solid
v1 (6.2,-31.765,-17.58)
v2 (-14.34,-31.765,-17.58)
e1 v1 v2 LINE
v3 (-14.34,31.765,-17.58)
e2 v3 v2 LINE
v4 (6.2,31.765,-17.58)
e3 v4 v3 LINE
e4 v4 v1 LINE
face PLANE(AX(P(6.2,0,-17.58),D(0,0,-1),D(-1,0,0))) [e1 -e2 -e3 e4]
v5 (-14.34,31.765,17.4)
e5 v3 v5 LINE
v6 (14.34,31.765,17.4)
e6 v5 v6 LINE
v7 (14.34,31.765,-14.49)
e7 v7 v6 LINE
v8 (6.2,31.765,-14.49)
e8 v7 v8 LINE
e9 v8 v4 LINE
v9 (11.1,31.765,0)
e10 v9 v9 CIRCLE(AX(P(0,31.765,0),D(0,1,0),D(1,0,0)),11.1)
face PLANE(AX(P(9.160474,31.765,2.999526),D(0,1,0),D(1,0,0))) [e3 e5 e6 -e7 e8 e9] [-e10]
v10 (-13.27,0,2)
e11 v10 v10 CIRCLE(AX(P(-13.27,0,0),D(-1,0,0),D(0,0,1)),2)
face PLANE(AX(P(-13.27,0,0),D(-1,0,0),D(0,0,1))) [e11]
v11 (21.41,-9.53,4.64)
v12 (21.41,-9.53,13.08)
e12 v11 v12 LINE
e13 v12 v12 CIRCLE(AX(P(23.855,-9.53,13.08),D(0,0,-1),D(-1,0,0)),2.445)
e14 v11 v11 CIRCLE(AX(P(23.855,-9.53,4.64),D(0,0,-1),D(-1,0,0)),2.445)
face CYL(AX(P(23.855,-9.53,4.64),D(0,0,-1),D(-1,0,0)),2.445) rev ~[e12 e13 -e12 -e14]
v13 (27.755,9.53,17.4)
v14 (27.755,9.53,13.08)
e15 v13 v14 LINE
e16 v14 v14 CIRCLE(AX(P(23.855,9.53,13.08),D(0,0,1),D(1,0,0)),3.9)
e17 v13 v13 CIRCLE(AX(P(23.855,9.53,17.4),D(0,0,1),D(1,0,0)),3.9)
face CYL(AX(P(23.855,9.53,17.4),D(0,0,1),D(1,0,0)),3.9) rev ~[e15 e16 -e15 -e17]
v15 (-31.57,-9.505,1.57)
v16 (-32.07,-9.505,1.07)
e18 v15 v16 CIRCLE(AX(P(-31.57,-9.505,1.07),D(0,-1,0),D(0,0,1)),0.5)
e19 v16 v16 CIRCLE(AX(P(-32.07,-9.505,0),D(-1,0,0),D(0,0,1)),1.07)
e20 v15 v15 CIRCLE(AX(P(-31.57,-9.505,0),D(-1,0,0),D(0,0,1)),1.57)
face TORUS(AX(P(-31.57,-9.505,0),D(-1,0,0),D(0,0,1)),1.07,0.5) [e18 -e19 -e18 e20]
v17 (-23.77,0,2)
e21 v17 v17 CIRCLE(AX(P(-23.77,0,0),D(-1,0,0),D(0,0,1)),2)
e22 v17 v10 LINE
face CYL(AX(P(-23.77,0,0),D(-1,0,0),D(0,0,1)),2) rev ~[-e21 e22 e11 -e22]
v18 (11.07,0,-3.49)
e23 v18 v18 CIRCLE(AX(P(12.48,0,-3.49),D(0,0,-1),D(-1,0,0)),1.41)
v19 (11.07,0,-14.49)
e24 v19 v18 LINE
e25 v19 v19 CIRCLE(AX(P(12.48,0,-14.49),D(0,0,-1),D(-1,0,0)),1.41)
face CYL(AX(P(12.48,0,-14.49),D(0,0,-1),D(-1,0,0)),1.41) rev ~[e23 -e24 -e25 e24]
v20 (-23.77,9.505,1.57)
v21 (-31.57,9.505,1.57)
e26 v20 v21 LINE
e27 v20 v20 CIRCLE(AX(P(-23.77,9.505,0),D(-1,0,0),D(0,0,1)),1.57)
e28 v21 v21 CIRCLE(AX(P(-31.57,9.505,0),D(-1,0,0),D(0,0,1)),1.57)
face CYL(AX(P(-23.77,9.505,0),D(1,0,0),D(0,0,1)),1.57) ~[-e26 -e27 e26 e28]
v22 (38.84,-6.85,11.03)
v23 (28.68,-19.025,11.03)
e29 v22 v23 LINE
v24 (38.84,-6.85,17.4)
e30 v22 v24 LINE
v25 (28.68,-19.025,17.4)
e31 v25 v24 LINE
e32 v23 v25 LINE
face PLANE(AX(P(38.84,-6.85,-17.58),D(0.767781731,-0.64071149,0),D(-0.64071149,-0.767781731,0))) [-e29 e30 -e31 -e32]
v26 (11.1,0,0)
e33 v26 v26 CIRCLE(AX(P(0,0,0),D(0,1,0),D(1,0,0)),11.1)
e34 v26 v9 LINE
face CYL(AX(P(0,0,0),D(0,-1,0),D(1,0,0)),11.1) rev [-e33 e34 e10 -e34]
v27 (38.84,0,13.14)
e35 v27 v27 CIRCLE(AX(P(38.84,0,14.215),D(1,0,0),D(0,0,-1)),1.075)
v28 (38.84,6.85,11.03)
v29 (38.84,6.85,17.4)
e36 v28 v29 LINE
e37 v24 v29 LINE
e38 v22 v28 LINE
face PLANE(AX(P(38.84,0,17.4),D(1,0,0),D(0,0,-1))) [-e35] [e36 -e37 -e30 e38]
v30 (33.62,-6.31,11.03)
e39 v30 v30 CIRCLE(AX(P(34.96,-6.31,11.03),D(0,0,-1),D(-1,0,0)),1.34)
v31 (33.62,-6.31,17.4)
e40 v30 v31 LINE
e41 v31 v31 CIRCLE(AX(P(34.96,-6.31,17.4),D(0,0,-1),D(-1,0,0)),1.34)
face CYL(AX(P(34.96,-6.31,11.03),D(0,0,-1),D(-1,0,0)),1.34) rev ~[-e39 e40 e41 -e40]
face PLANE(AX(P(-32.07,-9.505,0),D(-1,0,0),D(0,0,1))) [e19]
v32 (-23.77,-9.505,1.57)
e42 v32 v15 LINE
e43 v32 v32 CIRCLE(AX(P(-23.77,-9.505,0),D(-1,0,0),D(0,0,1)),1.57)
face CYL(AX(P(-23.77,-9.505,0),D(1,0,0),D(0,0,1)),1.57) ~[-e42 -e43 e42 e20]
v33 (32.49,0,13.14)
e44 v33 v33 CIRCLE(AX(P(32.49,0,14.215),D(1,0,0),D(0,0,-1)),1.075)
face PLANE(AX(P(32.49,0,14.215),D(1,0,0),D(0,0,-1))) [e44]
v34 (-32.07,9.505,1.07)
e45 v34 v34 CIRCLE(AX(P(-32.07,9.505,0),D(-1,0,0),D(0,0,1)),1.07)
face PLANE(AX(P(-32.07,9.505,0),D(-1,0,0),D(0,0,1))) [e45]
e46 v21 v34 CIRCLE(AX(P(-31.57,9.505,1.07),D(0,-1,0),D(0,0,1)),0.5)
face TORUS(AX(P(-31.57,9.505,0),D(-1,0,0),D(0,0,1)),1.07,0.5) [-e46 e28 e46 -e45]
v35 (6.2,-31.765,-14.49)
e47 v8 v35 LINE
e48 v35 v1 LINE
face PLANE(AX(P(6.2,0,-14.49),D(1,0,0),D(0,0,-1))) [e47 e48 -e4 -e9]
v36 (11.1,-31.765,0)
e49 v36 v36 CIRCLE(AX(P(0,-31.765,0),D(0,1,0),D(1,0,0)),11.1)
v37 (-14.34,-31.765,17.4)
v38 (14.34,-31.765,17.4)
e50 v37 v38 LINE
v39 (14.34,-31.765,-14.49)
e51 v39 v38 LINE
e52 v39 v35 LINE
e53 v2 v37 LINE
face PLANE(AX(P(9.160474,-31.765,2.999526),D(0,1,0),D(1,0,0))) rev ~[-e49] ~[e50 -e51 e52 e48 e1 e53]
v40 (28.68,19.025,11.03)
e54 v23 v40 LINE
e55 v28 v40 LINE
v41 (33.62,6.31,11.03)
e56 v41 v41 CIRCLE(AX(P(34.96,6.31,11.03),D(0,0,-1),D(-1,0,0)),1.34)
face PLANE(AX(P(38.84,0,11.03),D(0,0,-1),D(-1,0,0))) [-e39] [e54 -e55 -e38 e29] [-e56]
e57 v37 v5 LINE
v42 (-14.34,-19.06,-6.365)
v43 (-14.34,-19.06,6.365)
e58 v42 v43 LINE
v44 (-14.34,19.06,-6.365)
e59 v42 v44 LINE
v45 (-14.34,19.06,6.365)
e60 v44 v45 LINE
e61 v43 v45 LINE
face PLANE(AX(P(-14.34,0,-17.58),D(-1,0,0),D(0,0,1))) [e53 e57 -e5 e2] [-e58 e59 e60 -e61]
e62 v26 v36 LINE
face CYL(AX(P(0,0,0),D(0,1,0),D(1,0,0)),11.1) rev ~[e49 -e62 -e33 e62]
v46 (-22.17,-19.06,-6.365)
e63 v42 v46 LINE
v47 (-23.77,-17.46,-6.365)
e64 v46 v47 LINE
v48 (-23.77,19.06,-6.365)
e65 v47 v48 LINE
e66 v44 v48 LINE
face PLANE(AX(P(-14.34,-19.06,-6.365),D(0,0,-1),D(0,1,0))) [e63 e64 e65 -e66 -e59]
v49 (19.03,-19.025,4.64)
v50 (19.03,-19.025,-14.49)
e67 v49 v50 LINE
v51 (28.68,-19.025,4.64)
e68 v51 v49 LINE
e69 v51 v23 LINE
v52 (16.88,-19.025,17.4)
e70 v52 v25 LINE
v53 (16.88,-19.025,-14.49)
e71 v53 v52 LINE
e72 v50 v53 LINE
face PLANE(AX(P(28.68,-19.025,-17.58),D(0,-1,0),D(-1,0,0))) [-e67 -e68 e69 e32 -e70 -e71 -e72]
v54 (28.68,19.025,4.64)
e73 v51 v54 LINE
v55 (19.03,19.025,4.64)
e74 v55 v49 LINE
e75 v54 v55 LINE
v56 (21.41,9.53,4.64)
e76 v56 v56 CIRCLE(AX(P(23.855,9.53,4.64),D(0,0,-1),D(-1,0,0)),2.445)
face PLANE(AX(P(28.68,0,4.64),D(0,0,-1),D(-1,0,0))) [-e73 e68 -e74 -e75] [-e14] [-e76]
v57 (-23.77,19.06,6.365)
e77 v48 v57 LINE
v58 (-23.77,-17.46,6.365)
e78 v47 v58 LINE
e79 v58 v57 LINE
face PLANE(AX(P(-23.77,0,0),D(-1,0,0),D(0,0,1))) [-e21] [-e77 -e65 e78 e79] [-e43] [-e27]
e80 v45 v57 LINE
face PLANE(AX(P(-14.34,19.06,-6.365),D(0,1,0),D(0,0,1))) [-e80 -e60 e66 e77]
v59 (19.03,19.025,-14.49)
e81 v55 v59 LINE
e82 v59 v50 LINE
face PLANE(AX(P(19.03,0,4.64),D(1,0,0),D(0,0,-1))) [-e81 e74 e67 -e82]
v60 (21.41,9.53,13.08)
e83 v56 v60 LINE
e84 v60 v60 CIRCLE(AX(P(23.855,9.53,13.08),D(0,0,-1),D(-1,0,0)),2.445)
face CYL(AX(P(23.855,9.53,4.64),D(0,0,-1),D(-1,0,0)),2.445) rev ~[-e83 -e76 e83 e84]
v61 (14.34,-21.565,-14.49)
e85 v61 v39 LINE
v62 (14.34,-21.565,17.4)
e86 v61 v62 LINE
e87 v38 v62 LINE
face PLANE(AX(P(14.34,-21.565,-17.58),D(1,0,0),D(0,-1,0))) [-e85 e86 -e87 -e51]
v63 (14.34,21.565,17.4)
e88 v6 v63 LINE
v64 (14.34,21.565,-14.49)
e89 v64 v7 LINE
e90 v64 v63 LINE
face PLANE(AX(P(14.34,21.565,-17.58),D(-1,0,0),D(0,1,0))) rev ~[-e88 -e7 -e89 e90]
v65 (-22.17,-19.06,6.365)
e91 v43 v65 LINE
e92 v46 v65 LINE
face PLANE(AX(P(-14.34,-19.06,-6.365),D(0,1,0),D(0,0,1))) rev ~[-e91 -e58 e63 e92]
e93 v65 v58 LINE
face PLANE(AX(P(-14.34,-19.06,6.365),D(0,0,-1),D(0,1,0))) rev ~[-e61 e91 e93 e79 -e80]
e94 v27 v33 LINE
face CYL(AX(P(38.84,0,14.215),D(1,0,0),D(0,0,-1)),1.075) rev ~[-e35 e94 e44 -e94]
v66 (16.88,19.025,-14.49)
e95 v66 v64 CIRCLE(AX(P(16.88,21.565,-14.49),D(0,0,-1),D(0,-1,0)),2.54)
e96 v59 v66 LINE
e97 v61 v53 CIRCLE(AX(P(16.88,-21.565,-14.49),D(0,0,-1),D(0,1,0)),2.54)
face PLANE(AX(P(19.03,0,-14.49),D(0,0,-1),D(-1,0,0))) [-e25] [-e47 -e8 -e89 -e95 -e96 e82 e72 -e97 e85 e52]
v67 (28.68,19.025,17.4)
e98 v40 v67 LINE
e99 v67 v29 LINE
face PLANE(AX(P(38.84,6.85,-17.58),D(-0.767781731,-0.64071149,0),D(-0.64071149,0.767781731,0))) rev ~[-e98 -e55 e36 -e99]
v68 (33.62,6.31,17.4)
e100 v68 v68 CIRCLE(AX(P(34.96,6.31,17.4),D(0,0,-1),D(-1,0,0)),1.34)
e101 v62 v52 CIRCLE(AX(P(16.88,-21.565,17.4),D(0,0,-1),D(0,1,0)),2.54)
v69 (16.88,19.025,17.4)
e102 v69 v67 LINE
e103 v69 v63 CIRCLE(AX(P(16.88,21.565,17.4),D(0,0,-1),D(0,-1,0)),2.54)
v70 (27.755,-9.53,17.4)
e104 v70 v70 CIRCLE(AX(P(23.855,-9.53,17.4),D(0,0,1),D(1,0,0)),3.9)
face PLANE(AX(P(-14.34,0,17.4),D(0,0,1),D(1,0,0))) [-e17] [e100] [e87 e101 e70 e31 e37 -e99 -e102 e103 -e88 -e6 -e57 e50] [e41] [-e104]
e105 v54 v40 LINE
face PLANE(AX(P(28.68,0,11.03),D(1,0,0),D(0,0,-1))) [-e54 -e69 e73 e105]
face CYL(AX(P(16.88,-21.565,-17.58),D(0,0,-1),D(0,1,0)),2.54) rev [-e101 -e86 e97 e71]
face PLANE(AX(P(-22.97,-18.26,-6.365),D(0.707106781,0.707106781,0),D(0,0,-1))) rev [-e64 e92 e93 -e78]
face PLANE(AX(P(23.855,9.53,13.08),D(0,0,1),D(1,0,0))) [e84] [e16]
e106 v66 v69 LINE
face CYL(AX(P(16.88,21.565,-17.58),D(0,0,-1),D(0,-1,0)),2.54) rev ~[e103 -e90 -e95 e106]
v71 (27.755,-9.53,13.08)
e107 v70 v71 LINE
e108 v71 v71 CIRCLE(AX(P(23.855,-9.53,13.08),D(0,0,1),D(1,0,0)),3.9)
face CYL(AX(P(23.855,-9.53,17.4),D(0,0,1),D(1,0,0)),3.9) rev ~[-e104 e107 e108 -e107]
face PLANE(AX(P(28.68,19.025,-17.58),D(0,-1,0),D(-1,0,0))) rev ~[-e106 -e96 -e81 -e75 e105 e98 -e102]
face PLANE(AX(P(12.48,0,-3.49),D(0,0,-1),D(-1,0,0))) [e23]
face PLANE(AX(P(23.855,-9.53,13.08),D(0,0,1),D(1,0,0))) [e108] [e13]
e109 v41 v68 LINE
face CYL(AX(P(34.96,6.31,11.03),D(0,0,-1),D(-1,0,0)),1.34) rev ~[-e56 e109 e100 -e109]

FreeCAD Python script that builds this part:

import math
import FreeCAD as App
import Part
import Sketcher

V = App.Vector
Q = App.Units.Quantity


def edges_at(feature, points):
    """Names of the edges that pass closest to the given points."""
    edges = feature.Shape.Edges
    near = lambda p: min(range(len(edges)), key=lambda i: edges[i].distToShape(Part.Vertex(*p))[0])
    return sorted({f"Edge{near(p) + 1}" for p in points})


def add_polygon(sketch, points):
    """Adds a closed chain of lines whose ends are joined by coincident constraints."""
    first, n = sketch.GeometryCount, len(points)
    for a, b in zip(points, points[1:] + points[:1]):
        sketch.addGeometry(Part.LineSegment(App.Vector(*a, 0), App.Vector(*b, 0)), False)
    for i in range(n):
        sketch.addConstraint(Sketcher.Constraint("Coincident", first + i, 2, first + (i + 1) % n, 1))

doc = App.newDocument("Part")
body = doc.addObject("PartDesign::Body", "Body")

sketch1 = doc.addObject("Sketcher::SketchObject", "Sketch")
body.addObject(sketch1)
sketch1.AttachmentSupport = (doc.XZ_Plane, [""])
sketch1.MapMode = "FlatFace"
add_polygon(sketch1, [(-14.3, -17.6), (-14.3, 17.4), (38.8, 17.4), (38.8, 11), (28.7, 11), (28.7, 4.6), (19, 4.6), (19, -14.5), (6.2, -14.5), (6.2, -17.6)])
sketch1.addGeometry(Part.Circle(V(0, 0, 0), V(0, 0, 1), 11.1), False)
sketch1.addConstraint([
    Sketcher.Constraint("Vertical", 0),
    Sketcher.Constraint("Horizontal", 1),
    Sketcher.Constraint("Vertical", 2),
    Sketcher.Constraint("Horizontal", 3),
    Sketcher.Constraint("Vertical", 4),
    Sketcher.Constraint("Horizontal", 5),
    Sketcher.Constraint("Vertical", 6),
    Sketcher.Constraint("Horizontal", 7),
    Sketcher.Constraint("Vertical", 8),
    Sketcher.Constraint("Horizontal", 9),
    Sketcher.Constraint("Coincident", 10, 3, -1, 1),
    Sketcher.Constraint("Diameter", 10, Q("22.2 mm")),
    Sketcher.Constraint("DistanceX", 1, 1, 1, 2, Q("53.18 mm")),
    Sketcher.Constraint("DistanceX", 3, 2, 3, 1, Q("10.16 mm")),
    Sketcher.Constraint("DistanceX", 5, 2, 5, 1, Q("9.65 mm")),
    Sketcher.Constraint("DistanceX", 7, 2, 7, 1, Q("12.83 mm")),
    Sketcher.Constraint("DistanceY", 0, 1, 0, 2, Q("34.98 mm")),
    Sketcher.Constraint("DistanceY", 2, 2, 2, 1, Q("6.37 mm")),
    Sketcher.Constraint("DistanceY", 4, 2, 4, 1, Q("6.39 mm")),
    Sketcher.Constraint("DistanceY", 6, 2, 6, 1, Q("19.13 mm")),
    Sketcher.Constraint("DistanceY", -1, 1, 0, 2, Q("17.4 mm")),
    Sketcher.Constraint("DistanceX", -1, 1, 7, 2, Q("6.2 mm")),
])
pad1 = doc.addObject("PartDesign::Pad", "Pad")
body.addObject(pad1)
pad1.Profile = sketch1
pad1.Type = "TwoLengths"
pad1.Length = 31.765
pad1.Length2 = 31.765
pad1.Reversed = True

sketch2 = doc.addObject("Sketcher::SketchObject", "Sketch001")
body.addObject(sketch2)
sketch2.AttachmentSupport = (doc.YZ_Plane, [""])
sketch2.MapMode = "FlatFace"
sketch2.AttachmentOffset = App.Placement(V(0, 0, -14.34), App.Rotation())
add_polygon(sketch2, [(19, -6), (-19, -6), (-19, 6), (19, 6)])
sketch2.addConstraint([
    Sketcher.Constraint("Horizontal", 0),
    Sketcher.Constraint("Vertical", 1),
    Sketcher.Constraint("Horizontal", 2),
    Sketcher.Constraint("Vertical", 3),
    Sketcher.Constraint("Symmetric", 0, 2, 2, 2, -1, 1),
    Sketcher.Constraint("DistanceX", 0, 2, 0, 1, Q("38.12 mm")),
    Sketcher.Constraint("DistanceY", 1, 1, 1, 2, Q("12.73 mm")),
])
pad2 = doc.addObject("PartDesign::Pad", "Pad001")
body.addObject(pad2)
pad2.Profile = sketch2
pad2.Length = 9.43
pad2.Reversed = True

sketch3 = doc.addObject("Sketcher::SketchObject", "Sketch002")
body.addObject(sketch3)
sketch3.AttachmentSupport = (doc.XY_Plane, [""])
sketch3.MapMode = "FlatFace"
sketch3.AttachmentOffset = App.Placement(V(0, 0, -17.58), App.Rotation())
sketch3.addGeometry([
    Part.LineSegment(V(38.8, 6.8, 0), V(28.7, 19, 0)),
    Part.LineSegment(V(28.7, 19, 0), V(16.9, 19, 0)),
    Part.ArcOfCircle(Part.Circle(V(16.9, 21.6, 0), V(0, 0, 1), 2.5), math.radians(-180), math.radians(-90)),
    Part.LineSegment(V(14.3, 21.6, 0), V(14.3, 31.8, 0)),
    Part.LineSegment(V(14.3, 31.8, 0), V(38.8, 31.8, 0)),
    Part.LineSegment(V(38.8, 31.8, 0), V(38.8, 6.8, 0)),
    Part.LineSegment(V(16.9, -19, 0), V(28.7, -19, 0)),
    Part.LineSegment(V(28.7, -19, 0), V(38.8, -6.8, 0)),
    Part.LineSegment(V(38.8, -6.8, 0), V(38.8, -31.8, 0)),
    Part.LineSegment(V(38.8, -31.8, 0), V(14.3, -31.8, 0)),
    Part.LineSegment(V(14.3, -31.8, 0), V(14.3, -21.6, 0)),
    Part.ArcOfCircle(Part.Circle(V(16.9, -21.6, 0), V(0, 0, 1), 2.5), math.radians(90), math.radians(180)),
], False)
sketch3.addConstraint([
    Sketcher.Constraint("Coincident", 0, 2, 1, 1),
    Sketcher.Constraint("Tangent", 1, 2, 2, 2),
    Sketcher.Constraint("Tangent", 2, 1, 3, 1),
    Sketcher.Constraint("Coincident", 3, 2, 4, 1),
    Sketcher.Constraint("Coincident", 4, 2, 5, 1),
    Sketcher.Constraint("Coincident", 5, 2, 0, 1),
    Sketcher.Constraint("Coincident", 6, 2, 7, 1),
    Sketcher.Constraint("Coincident", 7, 2, 8, 1),
    Sketcher.Constraint("Coincident", 8, 2, 9, 1),
    Sketcher.Constraint("Coincident", 9, 2, 10, 1),
    Sketcher.Constraint("Tangent", 10, 2, 11, 2),
    Sketcher.Constraint("Tangent", 11, 1, 6, 1),
    Sketcher.Constraint("Horizontal", 1),
    Sketcher.Constraint("Vertical", 3),
    Sketcher.Constraint("Horizontal", 4),
    Sketcher.Constraint("Vertical", 5),
    Sketcher.Constraint("Horizontal", 6),
    Sketcher.Constraint("Vertical", 8),
    Sketcher.Constraint("Horizontal", 9),
    Sketcher.Constraint("Vertical", 10),
    Sketcher.Constraint("Equal", 2, 11),
    Sketcher.Constraint("Symmetric", 2, 3, 11, 3, -1),
    Sketcher.Constraint("Symmetric", 5, 2, 7, 2, -1),
    Sketcher.Constraint("Vertical", 0, 2, 6, 2),
    Sketcher.Constraint("Equal", 5, 8),
    Sketcher.Constraint("Radius", 2, Q("2.54 mm")),
    Sketcher.Constraint("DistanceX", 1, 2, 1, 1, Q("11.8 mm")),
    Sketcher.Constraint("DistanceX", 4, 1, 4, 2, Q("24.5 mm")),
    Sketcher.Constraint("DistanceY", 3, 1, 3, 2, Q("10.2 mm")),
    Sketcher.Constraint("DistanceY", 7, 2, 5, 2, Q("13.7 mm")),
    Sketcher.Constraint("DistanceY", 5, 2, 5, 1, Q("24.915 mm")),
    Sketcher.Constraint("DistanceX", -1, 1, 2, 3, Q("16.88 mm")),
])
pocket1 = doc.addObject("PartDesign::Pocket", "Pocket")
body.addObject(pocket1)
pocket1.Profile = sketch3
pocket1.Type = "ThroughAll"
pocket1.Reversed = True
doc.recompute()

chamfer = doc.addObject("PartDesign::Chamfer", "Chamfer")
body.addObject(chamfer)
chamfer.Base = (pocket1, edges_at(pocket1, [(-23.77, -19.06, 0)]))
chamfer.Size = 1.6

sketch4 = doc.addObject("Sketcher::SketchObject", "Sketch003")
body.addObject(sketch4)
sketch4.AttachmentSupport = (doc.XY_Plane, [""])
sketch4.MapMode = "FlatFace"
sketch4.AttachmentOffset = App.Placement(V(0, 0, -14.49), App.Rotation())
sketch4.addGeometry(Part.Circle(V(12.5, 0, 0), V(0, 0, 1), 1.4), False)
sketch4.addConstraint([
    Sketcher.Constraint("PointOnObject", 0, 3, -1),
    Sketcher.Constraint("Diameter", 0, Q("2.82 mm")),
    Sketcher.Constraint("DistanceX", -1, 1, 0, 3, Q("12.48 mm")),
])
pocket2 = doc.addObject("PartDesign::Pocket", "Pocket001")
body.addObject(pocket2)
pocket2.Profile = sketch4
pocket2.Length = 11
pocket2.Reversed = True

sketch5 = doc.addObject("Sketcher::SketchObject", "Sketch004")
body.addObject(sketch5)
sketch5.AttachmentSupport = (doc.XY_Plane, [""])
sketch5.MapMode = "FlatFace"
sketch5.AttachmentOffset = App.Placement(V(0, 0, 4.64), App.Rotation())
sketch5.addGeometry([
    Part.Circle(V(23.9, -9.5, 0), V(0, 0, 1), 2.4),
    Part.Circle(V(23.9, 9.5, 0), V(0, 0, 1), 2.4),
], False)
sketch5.addConstraint([
    Sketcher.Constraint("Equal", 0, 1),
    Sketcher.Constraint("Symmetric", 0, 3, 1, 3, -1),
    Sketcher.Constraint("Diameter", 0, Q("4.89 mm")),
    Sketcher.Constraint("DistanceY", 0, 3, -1, 1, Q("9.53 mm")),
    Sketcher.Constraint("DistanceX", -1, 1, 0, 3, Q("23.855 mm")),
])
pocket3 = doc.addObject("PartDesign::Pocket", "Pocket002")
body.addObject(pocket3)
pocket3.Profile = sketch5
pocket3.Type = "ThroughAll"
pocket3.Reversed = True

sketch6 = doc.addObject("Sketcher::SketchObject", "Sketch005")
body.addObject(sketch6)
sketch6.AttachmentSupport = (doc.XY_Plane, [""])
sketch6.MapMode = "FlatFace"
sketch6.AttachmentOffset = App.Placement(V(0, 0, 17.4), App.Rotation())
sketch6.addGeometry([
    Part.Circle(V(23.9, -9.5, 0), V(0, 0, 1), 3.9),
    Part.Circle(V(23.9, 9.5, 0), V(0, 0, 1), 3.9),
], False)
sketch6.addConstraint([
    Sketcher.Constraint("Equal", 0, 1),
    Sketcher.Constraint("Symmetric", 0, 3, 1, 3, -1),
    Sketcher.Constraint("Diameter", 0, Q("7.8 mm")),
    Sketcher.Constraint("DistanceY", 0, 3, -1, 1, Q("9.53 mm")),
    Sketcher.Constraint("DistanceX", -1, 1, 0, 3, Q("23.855 mm")),
])
pocket4 = doc.addObject("PartDesign::Pocket", "Pocket003")
body.addObject(pocket4)
pocket4.Profile = sketch6
pocket4.Length = 4.32

sketch7 = doc.addObject("Sketcher::SketchObject", "Sketch006")
body.addObject(sketch7)
sketch7.AttachmentSupport = (doc.XY_Plane, [""])
sketch7.MapMode = "FlatFace"
sketch7.AttachmentOffset = App.Placement(V(0, 0, 11.03), App.Rotation())
sketch7.addGeometry([
    Part.Circle(V(35, 6.3, 0), V(0, 0, 1), 1.3),
    Part.Circle(V(35, -6.3, 0), V(0, 0, 1), 1.3),
], False)
sketch7.addConstraint([
    Sketcher.Constraint("Equal", 0, 1),
    Sketcher.Constraint("Symmetric", 0, 3, 1, 3, -1),
    Sketcher.Constraint("Diameter", 0, Q("2.68 mm")),
    Sketcher.Constraint("DistanceX", -1, 1, 0, 3, Q("34.96 mm")),
    Sketcher.Constraint("DistanceY", -1, 1, 0, 3, Q("6.31 mm")),
])
pocket5 = doc.addObject("PartDesign::Pocket", "Pocket004")
body.addObject(pocket5)
pocket5.Profile = sketch7
pocket5.Type = "ThroughAll"
pocket5.Reversed = True

sketch8 = doc.addObject("Sketcher::SketchObject", "Sketch007")
body.addObject(sketch8)
sketch8.AttachmentSupport = (doc.YZ_Plane, [""])
sketch8.MapMode = "FlatFace"
sketch8.AttachmentOffset = App.Placement(V(0, 0, -23.77), App.Rotation())
sketch8.addGeometry(Part.Circle(V(0, 0, 0), V(0, 0, 1), 2), False)
sketch8.addConstraint([
    Sketcher.Constraint("Coincident", 0, 3, -1, 1),
    Sketcher.Constraint("Diameter", 0, Q("4 mm")),
])
pocket6 = doc.addObject("PartDesign::Pocket", "Pocket005")
body.addObject(pocket6)
pocket6.Profile = sketch8
pocket6.Length = 10.5
pocket6.Reversed = True

sketch9 = doc.addObject("Sketcher::SketchObject", "Sketch008")
body.addObject(sketch9)
sketch9.AttachmentSupport = (doc.YZ_Plane, [""])
sketch9.MapMode = "FlatFace"
sketch9.AttachmentOffset = App.Placement(V(0, 0, -23.77), App.Rotation())
sketch9.addGeometry([
    Part.Circle(V(-9.5, 0, 0), V(0, 0, 1), 1.6),
    Part.Circle(V(9.5, 0, 0), V(0, 0, 1), 1.6),
], False)
sketch9.addConstraint([
    Sketcher.Constraint("Equal", 0, 1),
    Sketcher.Constraint("Symmetric", 0, 3, 1, 3, -1, 1),
    Sketcher.Constraint("PointOnObject", 0, 3, -1),
    Sketcher.Constraint("Diameter", 0, Q("3.14 mm")),
    Sketcher.Constraint("DistanceX", 0, 3, 1, 3, Q("19.01 mm")),
])
pad3 = doc.addObject("PartDesign::Pad", "Pad002")
body.addObject(pad3)
pad3.Profile = sketch9
pad3.Length = 8.3
pad3.Reversed = True
doc.recompute()

fillet = doc.addObject("PartDesign::Fillet", "Fillet")
body.addObject(fillet)
fillet.Base = (pad3, edges_at(pad3, [(-32.07, -9.505, -1.57), (-32.07, 9.505, -1.57)]))
fillet.Radius = 0.5

sketch10 = doc.addObject("Sketcher::SketchObject", "Sketch009")
body.addObject(sketch10)
sketch10.AttachmentSupport = (doc.YZ_Plane, [""])
sketch10.MapMode = "FlatFace"
sketch10.AttachmentOffset = App.Placement(V(0, 0, 38.84), App.Rotation())
sketch10.addGeometry(Part.Circle(V(0, 14.2, 0), V(0, 0, 1), 1.1), False)
sketch10.addConstraint([
    Sketcher.Constraint("PointOnObject", 0, 3, -2),
    Sketcher.Constraint("Diameter", 0, Q("2.15 mm")),
    Sketcher.Constraint("DistanceY", -1, 1, 0, 3, Q("14.215 mm")),
])
pocket7 = doc.addObject("PartDesign::Pocket", "Pocket006")
body.addObject(pocket7)
pocket7.Profile = sketch10
pocket7.Length = 6.35

doc.recompute()
